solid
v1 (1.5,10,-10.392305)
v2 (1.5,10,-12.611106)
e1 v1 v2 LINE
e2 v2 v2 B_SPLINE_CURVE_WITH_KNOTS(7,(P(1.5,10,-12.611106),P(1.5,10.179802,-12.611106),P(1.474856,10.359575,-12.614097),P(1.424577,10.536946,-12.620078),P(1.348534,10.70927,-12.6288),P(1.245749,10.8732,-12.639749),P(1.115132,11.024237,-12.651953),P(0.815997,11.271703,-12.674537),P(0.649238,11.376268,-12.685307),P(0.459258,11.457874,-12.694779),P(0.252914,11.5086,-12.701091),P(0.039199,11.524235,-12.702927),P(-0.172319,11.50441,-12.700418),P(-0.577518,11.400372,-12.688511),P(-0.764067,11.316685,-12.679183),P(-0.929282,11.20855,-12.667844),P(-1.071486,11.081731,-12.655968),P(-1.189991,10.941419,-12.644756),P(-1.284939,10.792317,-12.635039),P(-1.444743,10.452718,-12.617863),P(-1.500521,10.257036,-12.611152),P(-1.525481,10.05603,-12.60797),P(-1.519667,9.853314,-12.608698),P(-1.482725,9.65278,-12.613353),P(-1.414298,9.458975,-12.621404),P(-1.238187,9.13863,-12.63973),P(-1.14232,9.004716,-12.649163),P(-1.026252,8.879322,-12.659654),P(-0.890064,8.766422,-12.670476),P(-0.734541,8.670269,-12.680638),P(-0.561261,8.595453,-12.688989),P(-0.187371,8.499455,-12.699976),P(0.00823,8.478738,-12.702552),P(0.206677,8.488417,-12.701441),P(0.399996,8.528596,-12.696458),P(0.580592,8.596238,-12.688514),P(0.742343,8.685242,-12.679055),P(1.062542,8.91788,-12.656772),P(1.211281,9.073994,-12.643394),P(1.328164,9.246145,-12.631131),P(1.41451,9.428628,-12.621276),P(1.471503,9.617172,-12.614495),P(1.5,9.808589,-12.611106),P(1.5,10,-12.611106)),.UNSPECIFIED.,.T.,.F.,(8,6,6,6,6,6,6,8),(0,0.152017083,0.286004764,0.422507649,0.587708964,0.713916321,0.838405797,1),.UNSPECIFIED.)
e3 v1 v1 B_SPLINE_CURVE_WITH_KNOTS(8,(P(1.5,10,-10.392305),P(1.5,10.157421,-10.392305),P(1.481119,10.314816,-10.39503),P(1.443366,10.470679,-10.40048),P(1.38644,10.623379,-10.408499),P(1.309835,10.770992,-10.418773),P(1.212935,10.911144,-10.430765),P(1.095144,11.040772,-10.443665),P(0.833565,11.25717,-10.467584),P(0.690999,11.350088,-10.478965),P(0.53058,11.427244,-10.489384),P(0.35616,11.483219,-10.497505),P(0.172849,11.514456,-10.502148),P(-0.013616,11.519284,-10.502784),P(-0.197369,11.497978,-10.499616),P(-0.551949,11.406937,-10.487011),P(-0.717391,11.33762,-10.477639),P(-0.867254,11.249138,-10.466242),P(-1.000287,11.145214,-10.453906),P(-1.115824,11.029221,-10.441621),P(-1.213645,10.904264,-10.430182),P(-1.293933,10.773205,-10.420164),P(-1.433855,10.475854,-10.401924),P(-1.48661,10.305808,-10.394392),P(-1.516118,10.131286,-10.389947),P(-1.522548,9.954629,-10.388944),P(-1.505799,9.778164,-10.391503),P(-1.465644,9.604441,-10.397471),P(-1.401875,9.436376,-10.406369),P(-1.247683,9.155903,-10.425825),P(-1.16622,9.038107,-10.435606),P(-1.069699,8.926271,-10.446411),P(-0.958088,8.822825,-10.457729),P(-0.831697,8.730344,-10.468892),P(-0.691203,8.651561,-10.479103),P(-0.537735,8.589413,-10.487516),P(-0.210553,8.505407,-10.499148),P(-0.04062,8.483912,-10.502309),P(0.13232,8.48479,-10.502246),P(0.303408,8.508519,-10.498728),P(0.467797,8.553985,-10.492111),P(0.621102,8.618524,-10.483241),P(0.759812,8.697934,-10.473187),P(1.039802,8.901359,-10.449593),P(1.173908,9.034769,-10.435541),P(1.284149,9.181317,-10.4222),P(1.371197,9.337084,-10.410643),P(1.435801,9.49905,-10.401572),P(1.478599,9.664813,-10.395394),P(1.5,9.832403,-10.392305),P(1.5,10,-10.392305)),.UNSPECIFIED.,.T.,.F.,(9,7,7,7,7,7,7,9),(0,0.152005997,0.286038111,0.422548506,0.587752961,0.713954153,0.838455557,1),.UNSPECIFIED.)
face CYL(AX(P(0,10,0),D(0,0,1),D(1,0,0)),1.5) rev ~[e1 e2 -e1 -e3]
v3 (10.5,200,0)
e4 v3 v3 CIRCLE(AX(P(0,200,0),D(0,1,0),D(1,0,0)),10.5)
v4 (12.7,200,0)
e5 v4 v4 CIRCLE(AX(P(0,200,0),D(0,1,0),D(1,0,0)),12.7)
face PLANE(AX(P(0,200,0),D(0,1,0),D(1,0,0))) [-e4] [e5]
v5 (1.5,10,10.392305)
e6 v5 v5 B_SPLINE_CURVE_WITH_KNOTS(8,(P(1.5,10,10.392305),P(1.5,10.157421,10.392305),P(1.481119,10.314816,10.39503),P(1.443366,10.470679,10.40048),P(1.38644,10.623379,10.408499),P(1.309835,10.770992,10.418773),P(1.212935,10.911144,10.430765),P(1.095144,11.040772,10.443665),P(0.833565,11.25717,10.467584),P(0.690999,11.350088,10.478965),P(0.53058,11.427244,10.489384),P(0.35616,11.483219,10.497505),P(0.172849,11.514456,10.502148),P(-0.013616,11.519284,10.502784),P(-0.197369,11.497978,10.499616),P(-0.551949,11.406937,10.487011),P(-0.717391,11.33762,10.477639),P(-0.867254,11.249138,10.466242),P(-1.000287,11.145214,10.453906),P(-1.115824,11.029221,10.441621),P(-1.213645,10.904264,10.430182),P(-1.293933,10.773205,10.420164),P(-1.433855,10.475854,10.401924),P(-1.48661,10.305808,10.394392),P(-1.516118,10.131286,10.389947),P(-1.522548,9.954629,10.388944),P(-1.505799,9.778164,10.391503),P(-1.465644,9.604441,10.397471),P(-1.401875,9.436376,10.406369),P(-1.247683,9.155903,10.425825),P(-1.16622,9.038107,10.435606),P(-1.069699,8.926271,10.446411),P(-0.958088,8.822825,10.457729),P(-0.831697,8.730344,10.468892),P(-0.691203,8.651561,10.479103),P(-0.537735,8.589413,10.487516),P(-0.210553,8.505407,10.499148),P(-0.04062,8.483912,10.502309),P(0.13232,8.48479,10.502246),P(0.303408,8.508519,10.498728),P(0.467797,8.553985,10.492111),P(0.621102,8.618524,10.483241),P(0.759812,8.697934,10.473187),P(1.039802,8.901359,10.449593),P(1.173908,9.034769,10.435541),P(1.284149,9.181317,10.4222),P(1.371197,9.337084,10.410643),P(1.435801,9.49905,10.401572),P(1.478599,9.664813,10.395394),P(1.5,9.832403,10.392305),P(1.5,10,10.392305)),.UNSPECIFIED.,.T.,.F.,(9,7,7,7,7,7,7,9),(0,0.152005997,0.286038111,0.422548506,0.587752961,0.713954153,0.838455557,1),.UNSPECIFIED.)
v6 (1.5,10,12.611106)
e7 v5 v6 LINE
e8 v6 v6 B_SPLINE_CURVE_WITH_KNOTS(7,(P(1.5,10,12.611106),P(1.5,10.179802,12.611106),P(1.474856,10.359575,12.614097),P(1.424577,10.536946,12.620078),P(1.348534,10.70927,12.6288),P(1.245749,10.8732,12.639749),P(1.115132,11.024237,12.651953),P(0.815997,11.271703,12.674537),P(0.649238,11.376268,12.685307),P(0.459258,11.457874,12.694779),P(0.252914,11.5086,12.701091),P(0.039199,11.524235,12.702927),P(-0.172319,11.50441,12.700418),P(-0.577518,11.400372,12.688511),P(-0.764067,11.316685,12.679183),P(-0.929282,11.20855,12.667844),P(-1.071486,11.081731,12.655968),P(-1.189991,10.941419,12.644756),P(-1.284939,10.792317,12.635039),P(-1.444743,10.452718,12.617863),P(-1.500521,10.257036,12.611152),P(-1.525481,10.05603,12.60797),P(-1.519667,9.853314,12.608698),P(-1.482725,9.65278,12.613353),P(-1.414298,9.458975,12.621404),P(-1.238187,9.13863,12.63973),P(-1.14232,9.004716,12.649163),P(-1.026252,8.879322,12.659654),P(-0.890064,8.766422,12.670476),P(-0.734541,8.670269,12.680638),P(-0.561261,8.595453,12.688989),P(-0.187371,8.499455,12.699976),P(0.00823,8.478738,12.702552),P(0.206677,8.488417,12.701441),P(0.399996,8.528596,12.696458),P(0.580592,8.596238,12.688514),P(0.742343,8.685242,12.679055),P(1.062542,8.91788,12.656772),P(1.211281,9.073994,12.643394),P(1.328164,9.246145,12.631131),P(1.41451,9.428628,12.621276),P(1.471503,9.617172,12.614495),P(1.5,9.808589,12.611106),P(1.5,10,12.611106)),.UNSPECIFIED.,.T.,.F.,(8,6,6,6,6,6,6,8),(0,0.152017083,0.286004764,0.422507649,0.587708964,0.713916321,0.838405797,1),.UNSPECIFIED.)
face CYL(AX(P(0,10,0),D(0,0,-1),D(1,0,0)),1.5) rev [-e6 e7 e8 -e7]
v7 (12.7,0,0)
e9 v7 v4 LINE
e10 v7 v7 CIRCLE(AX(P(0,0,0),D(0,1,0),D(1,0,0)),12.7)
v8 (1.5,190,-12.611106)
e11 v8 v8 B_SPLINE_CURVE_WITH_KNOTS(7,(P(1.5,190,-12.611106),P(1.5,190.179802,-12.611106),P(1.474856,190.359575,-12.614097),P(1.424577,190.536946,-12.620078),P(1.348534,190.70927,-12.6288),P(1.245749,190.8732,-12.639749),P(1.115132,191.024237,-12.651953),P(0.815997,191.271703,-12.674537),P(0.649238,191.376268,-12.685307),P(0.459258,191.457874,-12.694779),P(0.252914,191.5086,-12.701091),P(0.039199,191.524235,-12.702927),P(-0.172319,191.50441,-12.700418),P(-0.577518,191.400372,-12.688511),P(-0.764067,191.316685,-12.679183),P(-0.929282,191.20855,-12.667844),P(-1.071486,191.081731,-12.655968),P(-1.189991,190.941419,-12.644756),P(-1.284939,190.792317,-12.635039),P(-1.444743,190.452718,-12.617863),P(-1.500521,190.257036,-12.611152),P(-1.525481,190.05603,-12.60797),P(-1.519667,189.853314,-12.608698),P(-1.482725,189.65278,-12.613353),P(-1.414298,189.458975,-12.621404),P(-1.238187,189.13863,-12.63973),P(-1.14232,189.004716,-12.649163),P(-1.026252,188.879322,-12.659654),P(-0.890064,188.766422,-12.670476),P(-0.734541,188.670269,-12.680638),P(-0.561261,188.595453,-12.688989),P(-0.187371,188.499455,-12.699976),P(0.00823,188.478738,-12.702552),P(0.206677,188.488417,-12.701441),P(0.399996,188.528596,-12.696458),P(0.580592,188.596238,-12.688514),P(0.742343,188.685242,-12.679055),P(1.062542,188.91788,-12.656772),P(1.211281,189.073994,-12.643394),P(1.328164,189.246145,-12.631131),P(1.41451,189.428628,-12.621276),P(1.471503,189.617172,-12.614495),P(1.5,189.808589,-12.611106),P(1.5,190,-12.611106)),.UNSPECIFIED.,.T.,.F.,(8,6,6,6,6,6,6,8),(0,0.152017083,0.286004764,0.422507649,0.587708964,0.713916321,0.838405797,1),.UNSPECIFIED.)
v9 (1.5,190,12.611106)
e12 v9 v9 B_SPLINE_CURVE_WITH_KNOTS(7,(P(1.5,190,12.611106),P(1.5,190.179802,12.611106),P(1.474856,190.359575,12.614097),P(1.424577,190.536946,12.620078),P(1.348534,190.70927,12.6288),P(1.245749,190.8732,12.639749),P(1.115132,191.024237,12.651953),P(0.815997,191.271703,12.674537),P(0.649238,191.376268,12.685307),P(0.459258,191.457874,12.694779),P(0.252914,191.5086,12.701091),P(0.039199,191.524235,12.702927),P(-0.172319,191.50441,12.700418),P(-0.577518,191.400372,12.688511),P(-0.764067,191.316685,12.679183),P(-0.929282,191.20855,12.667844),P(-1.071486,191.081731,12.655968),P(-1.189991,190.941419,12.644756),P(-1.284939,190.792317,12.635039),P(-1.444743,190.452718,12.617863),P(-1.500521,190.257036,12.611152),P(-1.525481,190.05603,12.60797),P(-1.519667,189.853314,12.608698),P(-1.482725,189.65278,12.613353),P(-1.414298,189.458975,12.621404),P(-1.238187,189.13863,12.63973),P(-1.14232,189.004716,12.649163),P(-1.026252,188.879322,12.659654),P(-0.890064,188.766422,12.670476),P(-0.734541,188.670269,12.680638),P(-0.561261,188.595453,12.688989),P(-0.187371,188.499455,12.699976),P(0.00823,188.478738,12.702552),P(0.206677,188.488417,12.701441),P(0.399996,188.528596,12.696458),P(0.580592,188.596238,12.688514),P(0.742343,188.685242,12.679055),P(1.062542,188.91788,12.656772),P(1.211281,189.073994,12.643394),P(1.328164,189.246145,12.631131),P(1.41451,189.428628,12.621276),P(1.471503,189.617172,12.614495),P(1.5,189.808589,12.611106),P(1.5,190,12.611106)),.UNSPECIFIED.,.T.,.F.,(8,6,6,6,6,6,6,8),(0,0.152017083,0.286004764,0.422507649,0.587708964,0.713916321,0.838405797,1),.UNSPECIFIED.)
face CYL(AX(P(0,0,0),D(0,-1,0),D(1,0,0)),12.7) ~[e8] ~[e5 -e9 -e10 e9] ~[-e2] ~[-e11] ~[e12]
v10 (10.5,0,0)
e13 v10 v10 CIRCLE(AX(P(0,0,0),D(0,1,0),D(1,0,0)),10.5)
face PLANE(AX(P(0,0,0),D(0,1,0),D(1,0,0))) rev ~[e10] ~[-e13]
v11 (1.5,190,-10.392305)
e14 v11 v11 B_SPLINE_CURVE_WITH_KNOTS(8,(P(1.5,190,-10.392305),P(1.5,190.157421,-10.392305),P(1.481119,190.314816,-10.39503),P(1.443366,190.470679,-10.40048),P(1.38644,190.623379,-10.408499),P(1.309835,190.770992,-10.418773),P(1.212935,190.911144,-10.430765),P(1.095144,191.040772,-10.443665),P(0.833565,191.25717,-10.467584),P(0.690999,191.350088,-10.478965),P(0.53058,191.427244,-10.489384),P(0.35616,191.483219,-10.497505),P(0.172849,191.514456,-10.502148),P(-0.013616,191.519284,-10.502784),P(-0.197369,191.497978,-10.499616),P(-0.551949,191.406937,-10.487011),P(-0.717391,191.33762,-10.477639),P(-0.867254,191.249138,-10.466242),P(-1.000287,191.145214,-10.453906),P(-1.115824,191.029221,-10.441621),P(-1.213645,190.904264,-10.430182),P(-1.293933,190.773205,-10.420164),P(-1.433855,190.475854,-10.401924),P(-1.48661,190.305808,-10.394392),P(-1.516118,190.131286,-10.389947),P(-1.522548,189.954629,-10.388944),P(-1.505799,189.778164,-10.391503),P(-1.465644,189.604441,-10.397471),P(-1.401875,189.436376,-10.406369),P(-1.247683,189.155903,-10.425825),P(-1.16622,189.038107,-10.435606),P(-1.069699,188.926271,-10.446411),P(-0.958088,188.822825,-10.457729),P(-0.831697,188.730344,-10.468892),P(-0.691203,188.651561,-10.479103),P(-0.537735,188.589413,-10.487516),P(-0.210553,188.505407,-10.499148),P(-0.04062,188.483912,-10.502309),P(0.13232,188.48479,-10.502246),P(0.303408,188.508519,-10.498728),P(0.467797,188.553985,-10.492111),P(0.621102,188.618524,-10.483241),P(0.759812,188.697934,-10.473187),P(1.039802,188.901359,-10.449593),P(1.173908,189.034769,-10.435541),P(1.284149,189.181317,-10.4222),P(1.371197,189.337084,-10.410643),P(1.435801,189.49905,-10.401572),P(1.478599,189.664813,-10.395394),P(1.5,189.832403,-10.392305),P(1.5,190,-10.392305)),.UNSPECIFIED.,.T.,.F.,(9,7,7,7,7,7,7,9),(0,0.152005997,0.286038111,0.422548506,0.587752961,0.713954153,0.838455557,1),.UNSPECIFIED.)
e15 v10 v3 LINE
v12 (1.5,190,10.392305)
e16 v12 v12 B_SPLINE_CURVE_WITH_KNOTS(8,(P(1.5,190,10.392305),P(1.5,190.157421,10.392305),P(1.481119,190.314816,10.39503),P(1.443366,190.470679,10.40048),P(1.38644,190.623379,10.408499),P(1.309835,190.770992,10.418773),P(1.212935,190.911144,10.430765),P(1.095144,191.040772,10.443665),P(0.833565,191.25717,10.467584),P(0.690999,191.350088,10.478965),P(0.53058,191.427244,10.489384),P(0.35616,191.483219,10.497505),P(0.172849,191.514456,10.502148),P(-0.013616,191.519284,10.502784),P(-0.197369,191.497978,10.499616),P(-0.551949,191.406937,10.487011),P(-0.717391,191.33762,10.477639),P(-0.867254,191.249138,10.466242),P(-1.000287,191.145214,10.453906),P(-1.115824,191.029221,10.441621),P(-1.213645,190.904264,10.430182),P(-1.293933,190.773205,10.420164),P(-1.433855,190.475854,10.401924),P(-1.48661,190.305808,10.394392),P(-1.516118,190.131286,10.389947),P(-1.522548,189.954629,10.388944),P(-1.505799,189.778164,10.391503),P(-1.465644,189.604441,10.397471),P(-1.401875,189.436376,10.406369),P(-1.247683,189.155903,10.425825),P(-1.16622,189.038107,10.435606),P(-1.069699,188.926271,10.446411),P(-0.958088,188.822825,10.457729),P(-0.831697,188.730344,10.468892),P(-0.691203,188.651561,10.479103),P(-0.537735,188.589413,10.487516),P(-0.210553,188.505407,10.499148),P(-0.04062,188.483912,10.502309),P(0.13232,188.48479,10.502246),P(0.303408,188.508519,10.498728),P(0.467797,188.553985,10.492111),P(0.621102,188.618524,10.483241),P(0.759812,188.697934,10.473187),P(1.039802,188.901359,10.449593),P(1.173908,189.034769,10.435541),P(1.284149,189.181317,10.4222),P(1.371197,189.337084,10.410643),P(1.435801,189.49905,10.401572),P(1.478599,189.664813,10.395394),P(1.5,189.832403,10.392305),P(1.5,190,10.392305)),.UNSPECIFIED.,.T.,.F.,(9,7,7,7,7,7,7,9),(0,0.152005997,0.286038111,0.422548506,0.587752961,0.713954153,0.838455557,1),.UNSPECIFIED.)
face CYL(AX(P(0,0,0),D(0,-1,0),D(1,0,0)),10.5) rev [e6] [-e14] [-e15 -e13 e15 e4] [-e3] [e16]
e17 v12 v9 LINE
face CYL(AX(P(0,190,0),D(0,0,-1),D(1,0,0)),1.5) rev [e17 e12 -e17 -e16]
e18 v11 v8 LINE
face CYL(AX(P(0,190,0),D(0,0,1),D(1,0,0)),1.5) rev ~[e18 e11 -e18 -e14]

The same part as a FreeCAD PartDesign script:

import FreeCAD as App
import Part
import Sketcher

doc = App.newDocument("Part")
params = doc.addObject("Spreadsheet::Sheet", "Params")
for row, (alias, value) in enumerate([
    ("sketch1_diameter", "21 mm"),
    ("sketch1_diameter2", "25.4 mm"),
    ("pad1_length", "200 mm"),
    ("sketch2_diameter", "3 mm"),
], start=1):
    params.set(f"A{row}", alias)
    params.set(f"B{row}", "=" + value)
    params.setAlias(f"B{row}", alias)

body = doc.addObject("PartDesign::Body", "Body")

sketch1 = body.newObject("Sketcher::SketchObject", "Sketch")
sketch1.AttachmentSupport = (doc.getObject("XZ_Plane"), [""])
sketch1.MapMode = "FlatFace"
sketch1.addGeometry([
    Part.Circle(App.Vector(0, 0, 0), App.Vector(0, 0, 1), 13),
    Part.Circle(App.Vector(0, 0, 0), App.Vector(0, 0, 1), 10),
], False)
sketch1.addConstraint([
    Sketcher.Constraint("Coincident", 0, 3, -1, 1),
    Sketcher.Constraint("Coincident", 1, 3, -1, 1),
    Sketcher.Constraint("Diameter", 1, 21.0),
    Sketcher.Constraint("Diameter", 0, 25.4),
])
sketch1.setExpression("Constraints[2]", "Params.sketch1_diameter")
sketch1.setExpression("Constraints[3]", "Params.sketch1_diameter2")
pad1 = body.newObject("PartDesign::Pad", "Pad")
pad1.Profile = sketch1
pad1.setExpression("Length", "Params.pad1_length")
pad1.Reversed = True

sketch2 = body.newObject("Sketcher::SketchObject", "Sketch001")
sketch2.AttachmentSupport = (doc.getObject("XY_Plane"), [""])
sketch2.MapMode = "FlatFace"
sketch2.addGeometry([
    Part.Circle(App.Vector(0, 190, 0), App.Vector(0, 0, 1), 1.5),
    Part.Circle(App.Vector(0, 10, 0), App.Vector(0, 0, 1), 1.5),
], False)
sketch2.addConstraint([
    Sketcher.Constraint("Equal", 0, 1),
    Sketcher.Constraint("PointOnObject", 0, 3, -2),
    Sketcher.Constraint("PointOnObject", 1, 3, -2),
    Sketcher.Constraint("Diameter", 0, 3.0),
    Sketcher.Constraint("DistanceY", -1, 1, 0, 3, 190.0),
    Sketcher.Constraint("DistanceY", -1, 1, 1, 3, 10.0),
])
sketch2.setExpression("Constraints[3]", "Params.sketch2_diameter")
pocket1 = body.newObject("PartDesign::Pocket", "Pocket")
pocket1.Profile = sketch2
pocket1.Type = "ThroughAll"
pocket1.Midplane = True

doc.recompute()
